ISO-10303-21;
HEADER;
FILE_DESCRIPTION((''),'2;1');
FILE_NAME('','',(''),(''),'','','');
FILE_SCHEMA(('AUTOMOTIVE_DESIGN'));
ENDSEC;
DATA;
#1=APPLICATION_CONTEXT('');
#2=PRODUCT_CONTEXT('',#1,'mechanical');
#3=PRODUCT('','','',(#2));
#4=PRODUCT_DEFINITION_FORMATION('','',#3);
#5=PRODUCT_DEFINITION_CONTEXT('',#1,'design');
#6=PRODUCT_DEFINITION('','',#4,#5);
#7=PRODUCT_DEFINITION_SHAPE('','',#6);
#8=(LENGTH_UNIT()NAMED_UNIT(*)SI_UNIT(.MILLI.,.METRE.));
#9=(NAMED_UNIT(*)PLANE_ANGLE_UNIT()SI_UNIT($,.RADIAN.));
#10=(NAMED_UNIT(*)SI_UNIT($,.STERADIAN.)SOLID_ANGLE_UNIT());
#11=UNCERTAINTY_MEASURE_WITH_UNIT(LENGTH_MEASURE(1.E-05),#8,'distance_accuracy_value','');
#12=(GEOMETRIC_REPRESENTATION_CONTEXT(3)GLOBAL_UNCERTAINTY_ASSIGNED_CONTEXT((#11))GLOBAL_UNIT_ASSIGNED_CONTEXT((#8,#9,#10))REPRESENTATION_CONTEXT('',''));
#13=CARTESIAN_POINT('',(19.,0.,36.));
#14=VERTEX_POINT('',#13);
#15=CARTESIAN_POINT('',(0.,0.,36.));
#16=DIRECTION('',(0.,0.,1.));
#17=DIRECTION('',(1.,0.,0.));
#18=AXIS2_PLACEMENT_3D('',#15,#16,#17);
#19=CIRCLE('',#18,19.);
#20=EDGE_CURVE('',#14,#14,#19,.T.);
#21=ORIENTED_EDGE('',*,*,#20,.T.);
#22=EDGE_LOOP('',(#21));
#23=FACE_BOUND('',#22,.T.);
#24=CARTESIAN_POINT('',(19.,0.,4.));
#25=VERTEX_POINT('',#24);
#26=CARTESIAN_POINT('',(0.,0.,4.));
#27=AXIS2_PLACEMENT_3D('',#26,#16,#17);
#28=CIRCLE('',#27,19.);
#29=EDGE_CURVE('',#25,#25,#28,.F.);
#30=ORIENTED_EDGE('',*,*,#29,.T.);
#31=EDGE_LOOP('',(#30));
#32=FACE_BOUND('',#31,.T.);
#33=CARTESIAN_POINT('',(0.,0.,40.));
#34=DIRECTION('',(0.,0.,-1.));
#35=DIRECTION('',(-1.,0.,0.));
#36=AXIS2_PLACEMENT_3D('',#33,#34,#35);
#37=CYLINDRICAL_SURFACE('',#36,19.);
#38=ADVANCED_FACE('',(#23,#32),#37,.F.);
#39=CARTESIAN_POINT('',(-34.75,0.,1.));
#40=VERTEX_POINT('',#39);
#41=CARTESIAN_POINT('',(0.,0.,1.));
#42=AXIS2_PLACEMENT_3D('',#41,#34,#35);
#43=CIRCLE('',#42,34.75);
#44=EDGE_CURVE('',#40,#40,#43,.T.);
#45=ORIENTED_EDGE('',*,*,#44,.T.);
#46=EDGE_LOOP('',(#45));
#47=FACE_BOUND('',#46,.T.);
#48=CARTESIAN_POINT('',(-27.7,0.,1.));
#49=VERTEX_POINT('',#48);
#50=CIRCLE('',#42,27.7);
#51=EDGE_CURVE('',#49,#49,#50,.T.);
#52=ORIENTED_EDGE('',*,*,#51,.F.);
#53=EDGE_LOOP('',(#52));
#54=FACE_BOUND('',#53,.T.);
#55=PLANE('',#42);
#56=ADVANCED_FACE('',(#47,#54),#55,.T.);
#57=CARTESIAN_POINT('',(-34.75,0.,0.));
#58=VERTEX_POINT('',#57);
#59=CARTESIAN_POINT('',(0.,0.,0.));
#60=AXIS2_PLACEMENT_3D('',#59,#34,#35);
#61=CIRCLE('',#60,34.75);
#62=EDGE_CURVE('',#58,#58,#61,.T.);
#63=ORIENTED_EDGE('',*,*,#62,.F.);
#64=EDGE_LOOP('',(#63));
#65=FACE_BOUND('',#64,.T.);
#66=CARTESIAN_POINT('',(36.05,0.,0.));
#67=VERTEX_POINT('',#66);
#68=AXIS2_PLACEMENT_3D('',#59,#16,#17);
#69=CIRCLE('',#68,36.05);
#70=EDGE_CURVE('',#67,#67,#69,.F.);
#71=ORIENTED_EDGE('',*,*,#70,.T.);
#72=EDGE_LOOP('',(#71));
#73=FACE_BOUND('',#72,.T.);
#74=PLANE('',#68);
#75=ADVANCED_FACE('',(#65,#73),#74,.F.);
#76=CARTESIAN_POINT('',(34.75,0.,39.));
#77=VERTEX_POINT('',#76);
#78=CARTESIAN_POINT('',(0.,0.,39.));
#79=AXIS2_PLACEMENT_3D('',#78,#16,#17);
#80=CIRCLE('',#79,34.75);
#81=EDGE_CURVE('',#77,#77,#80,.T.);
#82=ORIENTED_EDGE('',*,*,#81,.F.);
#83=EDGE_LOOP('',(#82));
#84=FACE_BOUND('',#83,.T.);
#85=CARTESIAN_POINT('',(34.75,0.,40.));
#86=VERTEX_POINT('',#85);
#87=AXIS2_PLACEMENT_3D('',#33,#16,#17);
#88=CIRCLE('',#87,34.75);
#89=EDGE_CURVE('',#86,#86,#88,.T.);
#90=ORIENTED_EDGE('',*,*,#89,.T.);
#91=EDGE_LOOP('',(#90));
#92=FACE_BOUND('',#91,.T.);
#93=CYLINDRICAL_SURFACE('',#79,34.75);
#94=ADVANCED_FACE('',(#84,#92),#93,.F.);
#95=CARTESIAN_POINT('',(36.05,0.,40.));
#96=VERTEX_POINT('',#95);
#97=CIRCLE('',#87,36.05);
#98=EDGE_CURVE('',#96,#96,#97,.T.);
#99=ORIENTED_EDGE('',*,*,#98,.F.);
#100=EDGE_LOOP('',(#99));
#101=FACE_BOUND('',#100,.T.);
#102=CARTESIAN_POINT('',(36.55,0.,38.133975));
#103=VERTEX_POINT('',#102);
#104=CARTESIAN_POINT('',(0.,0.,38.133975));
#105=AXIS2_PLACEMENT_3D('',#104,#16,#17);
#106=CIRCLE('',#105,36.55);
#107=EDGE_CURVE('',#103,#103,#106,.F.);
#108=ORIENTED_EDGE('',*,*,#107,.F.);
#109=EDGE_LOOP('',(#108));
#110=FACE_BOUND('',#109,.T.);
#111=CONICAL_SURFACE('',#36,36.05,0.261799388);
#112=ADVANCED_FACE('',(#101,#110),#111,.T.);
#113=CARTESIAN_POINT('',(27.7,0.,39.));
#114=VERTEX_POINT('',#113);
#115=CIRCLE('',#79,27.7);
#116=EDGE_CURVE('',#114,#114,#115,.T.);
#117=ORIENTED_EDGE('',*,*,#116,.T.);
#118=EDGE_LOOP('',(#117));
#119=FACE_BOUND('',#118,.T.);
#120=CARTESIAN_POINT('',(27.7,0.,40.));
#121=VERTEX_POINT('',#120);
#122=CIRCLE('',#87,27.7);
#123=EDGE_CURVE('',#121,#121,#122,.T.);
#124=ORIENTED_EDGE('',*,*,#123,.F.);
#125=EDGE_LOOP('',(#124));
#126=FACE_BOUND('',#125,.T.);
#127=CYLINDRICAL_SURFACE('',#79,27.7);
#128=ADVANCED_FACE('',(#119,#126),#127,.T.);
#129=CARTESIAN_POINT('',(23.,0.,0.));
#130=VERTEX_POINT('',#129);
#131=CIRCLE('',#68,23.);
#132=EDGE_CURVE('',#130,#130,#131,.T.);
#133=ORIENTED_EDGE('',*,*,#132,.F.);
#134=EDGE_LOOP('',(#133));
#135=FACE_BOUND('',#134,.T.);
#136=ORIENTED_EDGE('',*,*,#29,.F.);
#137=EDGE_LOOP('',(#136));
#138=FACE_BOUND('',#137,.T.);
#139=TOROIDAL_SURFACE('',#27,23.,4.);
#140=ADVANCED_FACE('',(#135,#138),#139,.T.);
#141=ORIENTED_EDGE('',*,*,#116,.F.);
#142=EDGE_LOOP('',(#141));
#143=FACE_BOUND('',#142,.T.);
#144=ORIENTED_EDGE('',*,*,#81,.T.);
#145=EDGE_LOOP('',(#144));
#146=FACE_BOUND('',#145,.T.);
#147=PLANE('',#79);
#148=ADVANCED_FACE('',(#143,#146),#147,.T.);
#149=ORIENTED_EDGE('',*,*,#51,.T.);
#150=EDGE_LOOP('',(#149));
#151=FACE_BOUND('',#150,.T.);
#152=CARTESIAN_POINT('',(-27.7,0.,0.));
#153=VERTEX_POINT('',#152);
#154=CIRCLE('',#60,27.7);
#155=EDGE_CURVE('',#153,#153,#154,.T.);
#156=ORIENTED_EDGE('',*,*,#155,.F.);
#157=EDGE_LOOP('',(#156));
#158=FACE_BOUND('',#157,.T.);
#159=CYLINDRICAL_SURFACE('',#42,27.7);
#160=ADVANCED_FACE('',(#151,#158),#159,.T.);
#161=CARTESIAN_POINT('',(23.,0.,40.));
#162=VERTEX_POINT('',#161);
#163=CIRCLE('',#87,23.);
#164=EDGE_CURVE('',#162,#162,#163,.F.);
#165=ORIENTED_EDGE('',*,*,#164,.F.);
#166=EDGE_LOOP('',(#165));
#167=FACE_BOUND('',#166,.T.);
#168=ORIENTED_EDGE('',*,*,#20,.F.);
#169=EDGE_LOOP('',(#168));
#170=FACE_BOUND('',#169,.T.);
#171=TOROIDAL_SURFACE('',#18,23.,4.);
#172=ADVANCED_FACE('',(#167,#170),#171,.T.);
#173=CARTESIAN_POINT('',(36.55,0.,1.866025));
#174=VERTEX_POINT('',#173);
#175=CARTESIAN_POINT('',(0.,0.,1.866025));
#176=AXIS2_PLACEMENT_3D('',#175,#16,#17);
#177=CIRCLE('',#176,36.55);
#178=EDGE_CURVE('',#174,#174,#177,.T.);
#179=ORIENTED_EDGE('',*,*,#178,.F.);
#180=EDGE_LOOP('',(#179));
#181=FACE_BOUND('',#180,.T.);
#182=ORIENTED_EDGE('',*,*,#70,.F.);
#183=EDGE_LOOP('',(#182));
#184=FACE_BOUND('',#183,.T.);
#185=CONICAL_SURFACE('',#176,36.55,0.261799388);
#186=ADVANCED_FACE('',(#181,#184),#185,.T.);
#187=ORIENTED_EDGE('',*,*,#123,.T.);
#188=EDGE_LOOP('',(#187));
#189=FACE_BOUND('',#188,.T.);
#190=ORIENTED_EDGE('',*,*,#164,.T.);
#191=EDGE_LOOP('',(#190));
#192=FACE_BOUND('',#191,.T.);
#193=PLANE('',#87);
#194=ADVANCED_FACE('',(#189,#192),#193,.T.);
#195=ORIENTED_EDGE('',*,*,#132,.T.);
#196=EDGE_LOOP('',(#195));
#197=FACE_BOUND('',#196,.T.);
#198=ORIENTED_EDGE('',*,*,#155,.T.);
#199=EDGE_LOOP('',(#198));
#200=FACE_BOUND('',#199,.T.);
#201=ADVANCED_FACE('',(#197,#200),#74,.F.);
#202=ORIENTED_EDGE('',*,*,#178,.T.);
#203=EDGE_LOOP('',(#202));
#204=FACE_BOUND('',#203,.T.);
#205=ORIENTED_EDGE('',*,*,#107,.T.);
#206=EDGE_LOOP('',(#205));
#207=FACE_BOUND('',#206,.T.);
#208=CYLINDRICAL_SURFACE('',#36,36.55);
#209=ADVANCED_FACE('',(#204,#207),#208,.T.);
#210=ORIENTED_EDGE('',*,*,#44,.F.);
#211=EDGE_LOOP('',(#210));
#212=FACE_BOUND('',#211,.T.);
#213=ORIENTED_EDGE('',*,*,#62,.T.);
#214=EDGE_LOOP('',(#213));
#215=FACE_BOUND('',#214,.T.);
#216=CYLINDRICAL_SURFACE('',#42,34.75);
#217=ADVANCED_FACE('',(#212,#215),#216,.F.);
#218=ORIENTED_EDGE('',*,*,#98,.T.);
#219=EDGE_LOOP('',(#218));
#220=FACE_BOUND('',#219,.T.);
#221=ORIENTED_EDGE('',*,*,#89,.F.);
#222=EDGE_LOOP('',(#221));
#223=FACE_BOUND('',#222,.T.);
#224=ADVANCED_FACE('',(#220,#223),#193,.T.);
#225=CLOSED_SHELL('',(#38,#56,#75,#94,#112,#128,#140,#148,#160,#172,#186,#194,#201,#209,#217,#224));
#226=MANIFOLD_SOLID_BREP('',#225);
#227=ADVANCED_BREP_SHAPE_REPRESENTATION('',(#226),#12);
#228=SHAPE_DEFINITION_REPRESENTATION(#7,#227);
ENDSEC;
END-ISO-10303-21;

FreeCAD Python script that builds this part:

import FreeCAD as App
import Part
import Sketcher

V = App.Vector


def edges_at(feature, points):
    """Names of the edges that pass closest to the given points."""
    edges = feature.Shape.Edges
    near = lambda p: min(range(len(edges)), key=lambda i: edges[i].distToShape(Part.Vertex(*p))[0])
    return sorted({f"Edge{near(p) + 1}" for p in points})

doc = App.newDocument("Part")
body = doc.addObject("PartDesign::Body", "Body")

# Sketch on XY plane
sketch1 = body.newObject("Sketcher::SketchObject", "Sketch")
sketch1.AttachmentSupport = (doc.getObject("XY_Plane"), [""])
sketch1.MapMode = "FlatFace"
sketch1.addGeometry(Part.Circle(V(0, 0, 0), V(0, 0, 1), 36.55), False)
sketch1.addGeometry(Part.Circle(V(0, 0, 0), V(0, 0, 1), 19), False)
sketch1.addConstraint(Sketcher.Constraint("Coincident", 0, 3, -1, 1))
sketch1.addConstraint(Sketcher.Constraint("Coincident", 1, 3, -1, 1))
sketch1.addConstraint(Sketcher.Constraint("Diameter", 1, 38.0))
sketch1.addConstraint(Sketcher.Constraint("Diameter", 0, 73.1))
pad1 = body.newObject("PartDesign::Pad", "Pad")
pad1.Profile = sketch1
pad1.Length = 40

# Sketch on XY plane
sketch2 = body.newObject("Sketcher::SketchObject", "Sketch001")
sketch2.AttachmentSupport = (doc.getObject("XY_Plane"), [""])
sketch2.MapMode = "FlatFace"
sketch2.AttachmentOffset = App.Placement(V(0, 0, 40), App.Rotation())
sketch2.addGeometry(Part.Circle(V(0, 0, 0), V(0, 0, 1), 34.75), False)
sketch2.addGeometry(Part.Circle(V(0, 0, 0), V(0, 0, 1), 27.7), False)
sketch2.addConstraint(Sketcher.Constraint("Coincident", 0, 3, -1, 1))
sketch2.addConstraint(Sketcher.Constraint("Coincident", 1, 3, -1, 1))
sketch2.addConstraint(Sketcher.Constraint("Diameter", 0, 69.5))
sketch2.addConstraint(Sketcher.Constraint("Diameter", 1, 55.4))
pocket1 = body.newObject("PartDesign::Pocket", "Pocket")
pocket1.Profile = sketch2
pocket1.Length = 1

# Sketch on XY plane
sketch3 = body.newObject("Sketcher::SketchObject", "Sketch002")
sketch3.AttachmentSupport = (doc.getObject("XY_Plane"), [""])
sketch3.MapMode = "FlatFace"
sketch3.addGeometry(Part.Circle(V(0, 0, 0), V(0, 0, 1), 34.75), False)
sketch3.addGeometry(Part.Circle(V(0, 0, 0), V(0, 0, 1), 27.7), False)
sketch3.addConstraint(Sketcher.Constraint("Coincident", 0, 3, -1, 1))
sketch3.addConstraint(Sketcher.Constraint("Coincident", 1, 3, -1, 1))
sketch3.addConstraint(Sketcher.Constraint("Diameter", 0, 69.5))
sketch3.addConstraint(Sketcher.Constraint("Diameter", 1, 55.4))
pocket2 = body.newObject("PartDesign::Pocket", "Pocket001")
pocket2.Profile = sketch3
pocket2.Length = 1
pocket2.Reversed = True
doc.recompute()

fillet = body.newObject("PartDesign::Fillet", "Fillet")
fillet.Base = (pocket2, edges_at(pocket2, [(-19, 0, 0), (-19, 0, 40)]))
fillet.Radius = 4
doc.recompute()

chamfer = body.newObject("PartDesign::Chamfer", "Chamfer")
chamfer.Base = (fillet, edges_at(fillet, [(-36.55, 0, 0)]))
chamfer.ChamferType = "Two distances"
chamfer.Size = 0.5
chamfer.Size2 = 1.866025
doc.recompute()

chamfer2 = body.newObject("PartDesign::Chamfer", "Chamfer001")
chamfer2.Base = (chamfer, edges_at(chamfer, [(-36.55, 0, 40)]))
chamfer2.ChamferType = "Two distances"
chamfer2.Size = 0.5
chamfer2.Size2 = 1.866025
chamfer2.FlipDirection = True

doc.recompute()
